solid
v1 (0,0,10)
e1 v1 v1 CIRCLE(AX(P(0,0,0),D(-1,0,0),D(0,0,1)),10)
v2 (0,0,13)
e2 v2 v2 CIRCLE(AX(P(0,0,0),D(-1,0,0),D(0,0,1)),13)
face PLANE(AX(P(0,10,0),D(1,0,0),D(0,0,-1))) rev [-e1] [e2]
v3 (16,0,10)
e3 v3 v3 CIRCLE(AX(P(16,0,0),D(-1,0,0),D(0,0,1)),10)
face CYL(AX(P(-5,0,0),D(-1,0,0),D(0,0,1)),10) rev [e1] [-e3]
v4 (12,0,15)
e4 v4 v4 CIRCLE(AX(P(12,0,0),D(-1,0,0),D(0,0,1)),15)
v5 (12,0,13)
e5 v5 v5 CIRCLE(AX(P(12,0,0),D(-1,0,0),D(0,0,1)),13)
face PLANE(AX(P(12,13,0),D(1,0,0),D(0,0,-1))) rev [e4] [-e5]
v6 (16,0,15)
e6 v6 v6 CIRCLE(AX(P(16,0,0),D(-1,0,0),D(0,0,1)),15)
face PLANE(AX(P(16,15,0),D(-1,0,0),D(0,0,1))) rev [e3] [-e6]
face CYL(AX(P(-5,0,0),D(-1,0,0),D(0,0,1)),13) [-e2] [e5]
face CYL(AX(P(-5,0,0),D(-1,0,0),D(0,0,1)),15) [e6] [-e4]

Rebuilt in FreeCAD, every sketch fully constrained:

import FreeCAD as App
import Part
import Sketcher

doc = App.newDocument("Part")
body = doc.addObject("PartDesign::Body", "Body")

sketch1 = body.newObject("Sketcher::SketchObject", "Sketch")
sketch1.AttachmentSupport = (doc.getObject("XY_Plane"), [""])
sketch1.MapMode = "FlatFace"
sketch1.addGeometry([
    Part.LineSegment(App.Vector(0, 13, 0), App.Vector(0, 10, 0)),
    Part.LineSegment(App.Vector(0, 10, 0), App.Vector(16, 10, 0)),
    Part.LineSegment(App.Vector(16, 10, 0), App.Vector(16, 15, 0)),
    Part.LineSegment(App.Vector(16, 15, 0), App.Vector(12, 15, 0)),
    Part.LineSegment(App.Vector(12, 15, 0), App.Vector(12, 13, 0)),
    Part.LineSegment(App.Vector(12, 13, 0), App.Vector(0, 13, 0)),
], False)
sketch1.addConstraint([
    Sketcher.Constraint("Coincident", 0, 2, 1, 1),
    Sketcher.Constraint("Coincident", 1, 2, 2, 1),
    Sketcher.Constraint("Coincident", 2, 2, 3, 1),
    Sketcher.Constraint("Coincident", 3, 2, 4, 1),
    Sketcher.Constraint("Coincident", 4, 2, 5, 1),
    Sketcher.Constraint("Coincident", 5, 2, 0, 1),
    Sketcher.Constraint("Vertical", 0),
    Sketcher.Constraint("Horizontal", 1),
    Sketcher.Constraint("Vertical", 2),
    Sketcher.Constraint("Horizontal", 3),
    Sketcher.Constraint("Vertical", 4),
    Sketcher.Constraint("Horizontal", 5),
    Sketcher.Constraint("PointOnObject", 0, 2, -2),
    Sketcher.Constraint("DistanceX", 1, 1, 1, 2, 16.0),
    Sketcher.Constraint("DistanceX", 3, 2, 3, 1, 4.0),
    Sketcher.Constraint("DistanceY", 0, 2, 0, 1, 3.0),
    Sketcher.Constraint("DistanceY", 2, 1, 2, 2, 5.0),
    Sketcher.Constraint("DistanceY", -1, 1, 0, 2, 10.0),
])
revolution = body.newObject("PartDesign::Revolution", "Revolution")
revolution.Profile = sketch1
revolution.ReferenceAxis = (sketch1, ["H_Axis"])
revolution.Angle = 360

doc.recompute()
